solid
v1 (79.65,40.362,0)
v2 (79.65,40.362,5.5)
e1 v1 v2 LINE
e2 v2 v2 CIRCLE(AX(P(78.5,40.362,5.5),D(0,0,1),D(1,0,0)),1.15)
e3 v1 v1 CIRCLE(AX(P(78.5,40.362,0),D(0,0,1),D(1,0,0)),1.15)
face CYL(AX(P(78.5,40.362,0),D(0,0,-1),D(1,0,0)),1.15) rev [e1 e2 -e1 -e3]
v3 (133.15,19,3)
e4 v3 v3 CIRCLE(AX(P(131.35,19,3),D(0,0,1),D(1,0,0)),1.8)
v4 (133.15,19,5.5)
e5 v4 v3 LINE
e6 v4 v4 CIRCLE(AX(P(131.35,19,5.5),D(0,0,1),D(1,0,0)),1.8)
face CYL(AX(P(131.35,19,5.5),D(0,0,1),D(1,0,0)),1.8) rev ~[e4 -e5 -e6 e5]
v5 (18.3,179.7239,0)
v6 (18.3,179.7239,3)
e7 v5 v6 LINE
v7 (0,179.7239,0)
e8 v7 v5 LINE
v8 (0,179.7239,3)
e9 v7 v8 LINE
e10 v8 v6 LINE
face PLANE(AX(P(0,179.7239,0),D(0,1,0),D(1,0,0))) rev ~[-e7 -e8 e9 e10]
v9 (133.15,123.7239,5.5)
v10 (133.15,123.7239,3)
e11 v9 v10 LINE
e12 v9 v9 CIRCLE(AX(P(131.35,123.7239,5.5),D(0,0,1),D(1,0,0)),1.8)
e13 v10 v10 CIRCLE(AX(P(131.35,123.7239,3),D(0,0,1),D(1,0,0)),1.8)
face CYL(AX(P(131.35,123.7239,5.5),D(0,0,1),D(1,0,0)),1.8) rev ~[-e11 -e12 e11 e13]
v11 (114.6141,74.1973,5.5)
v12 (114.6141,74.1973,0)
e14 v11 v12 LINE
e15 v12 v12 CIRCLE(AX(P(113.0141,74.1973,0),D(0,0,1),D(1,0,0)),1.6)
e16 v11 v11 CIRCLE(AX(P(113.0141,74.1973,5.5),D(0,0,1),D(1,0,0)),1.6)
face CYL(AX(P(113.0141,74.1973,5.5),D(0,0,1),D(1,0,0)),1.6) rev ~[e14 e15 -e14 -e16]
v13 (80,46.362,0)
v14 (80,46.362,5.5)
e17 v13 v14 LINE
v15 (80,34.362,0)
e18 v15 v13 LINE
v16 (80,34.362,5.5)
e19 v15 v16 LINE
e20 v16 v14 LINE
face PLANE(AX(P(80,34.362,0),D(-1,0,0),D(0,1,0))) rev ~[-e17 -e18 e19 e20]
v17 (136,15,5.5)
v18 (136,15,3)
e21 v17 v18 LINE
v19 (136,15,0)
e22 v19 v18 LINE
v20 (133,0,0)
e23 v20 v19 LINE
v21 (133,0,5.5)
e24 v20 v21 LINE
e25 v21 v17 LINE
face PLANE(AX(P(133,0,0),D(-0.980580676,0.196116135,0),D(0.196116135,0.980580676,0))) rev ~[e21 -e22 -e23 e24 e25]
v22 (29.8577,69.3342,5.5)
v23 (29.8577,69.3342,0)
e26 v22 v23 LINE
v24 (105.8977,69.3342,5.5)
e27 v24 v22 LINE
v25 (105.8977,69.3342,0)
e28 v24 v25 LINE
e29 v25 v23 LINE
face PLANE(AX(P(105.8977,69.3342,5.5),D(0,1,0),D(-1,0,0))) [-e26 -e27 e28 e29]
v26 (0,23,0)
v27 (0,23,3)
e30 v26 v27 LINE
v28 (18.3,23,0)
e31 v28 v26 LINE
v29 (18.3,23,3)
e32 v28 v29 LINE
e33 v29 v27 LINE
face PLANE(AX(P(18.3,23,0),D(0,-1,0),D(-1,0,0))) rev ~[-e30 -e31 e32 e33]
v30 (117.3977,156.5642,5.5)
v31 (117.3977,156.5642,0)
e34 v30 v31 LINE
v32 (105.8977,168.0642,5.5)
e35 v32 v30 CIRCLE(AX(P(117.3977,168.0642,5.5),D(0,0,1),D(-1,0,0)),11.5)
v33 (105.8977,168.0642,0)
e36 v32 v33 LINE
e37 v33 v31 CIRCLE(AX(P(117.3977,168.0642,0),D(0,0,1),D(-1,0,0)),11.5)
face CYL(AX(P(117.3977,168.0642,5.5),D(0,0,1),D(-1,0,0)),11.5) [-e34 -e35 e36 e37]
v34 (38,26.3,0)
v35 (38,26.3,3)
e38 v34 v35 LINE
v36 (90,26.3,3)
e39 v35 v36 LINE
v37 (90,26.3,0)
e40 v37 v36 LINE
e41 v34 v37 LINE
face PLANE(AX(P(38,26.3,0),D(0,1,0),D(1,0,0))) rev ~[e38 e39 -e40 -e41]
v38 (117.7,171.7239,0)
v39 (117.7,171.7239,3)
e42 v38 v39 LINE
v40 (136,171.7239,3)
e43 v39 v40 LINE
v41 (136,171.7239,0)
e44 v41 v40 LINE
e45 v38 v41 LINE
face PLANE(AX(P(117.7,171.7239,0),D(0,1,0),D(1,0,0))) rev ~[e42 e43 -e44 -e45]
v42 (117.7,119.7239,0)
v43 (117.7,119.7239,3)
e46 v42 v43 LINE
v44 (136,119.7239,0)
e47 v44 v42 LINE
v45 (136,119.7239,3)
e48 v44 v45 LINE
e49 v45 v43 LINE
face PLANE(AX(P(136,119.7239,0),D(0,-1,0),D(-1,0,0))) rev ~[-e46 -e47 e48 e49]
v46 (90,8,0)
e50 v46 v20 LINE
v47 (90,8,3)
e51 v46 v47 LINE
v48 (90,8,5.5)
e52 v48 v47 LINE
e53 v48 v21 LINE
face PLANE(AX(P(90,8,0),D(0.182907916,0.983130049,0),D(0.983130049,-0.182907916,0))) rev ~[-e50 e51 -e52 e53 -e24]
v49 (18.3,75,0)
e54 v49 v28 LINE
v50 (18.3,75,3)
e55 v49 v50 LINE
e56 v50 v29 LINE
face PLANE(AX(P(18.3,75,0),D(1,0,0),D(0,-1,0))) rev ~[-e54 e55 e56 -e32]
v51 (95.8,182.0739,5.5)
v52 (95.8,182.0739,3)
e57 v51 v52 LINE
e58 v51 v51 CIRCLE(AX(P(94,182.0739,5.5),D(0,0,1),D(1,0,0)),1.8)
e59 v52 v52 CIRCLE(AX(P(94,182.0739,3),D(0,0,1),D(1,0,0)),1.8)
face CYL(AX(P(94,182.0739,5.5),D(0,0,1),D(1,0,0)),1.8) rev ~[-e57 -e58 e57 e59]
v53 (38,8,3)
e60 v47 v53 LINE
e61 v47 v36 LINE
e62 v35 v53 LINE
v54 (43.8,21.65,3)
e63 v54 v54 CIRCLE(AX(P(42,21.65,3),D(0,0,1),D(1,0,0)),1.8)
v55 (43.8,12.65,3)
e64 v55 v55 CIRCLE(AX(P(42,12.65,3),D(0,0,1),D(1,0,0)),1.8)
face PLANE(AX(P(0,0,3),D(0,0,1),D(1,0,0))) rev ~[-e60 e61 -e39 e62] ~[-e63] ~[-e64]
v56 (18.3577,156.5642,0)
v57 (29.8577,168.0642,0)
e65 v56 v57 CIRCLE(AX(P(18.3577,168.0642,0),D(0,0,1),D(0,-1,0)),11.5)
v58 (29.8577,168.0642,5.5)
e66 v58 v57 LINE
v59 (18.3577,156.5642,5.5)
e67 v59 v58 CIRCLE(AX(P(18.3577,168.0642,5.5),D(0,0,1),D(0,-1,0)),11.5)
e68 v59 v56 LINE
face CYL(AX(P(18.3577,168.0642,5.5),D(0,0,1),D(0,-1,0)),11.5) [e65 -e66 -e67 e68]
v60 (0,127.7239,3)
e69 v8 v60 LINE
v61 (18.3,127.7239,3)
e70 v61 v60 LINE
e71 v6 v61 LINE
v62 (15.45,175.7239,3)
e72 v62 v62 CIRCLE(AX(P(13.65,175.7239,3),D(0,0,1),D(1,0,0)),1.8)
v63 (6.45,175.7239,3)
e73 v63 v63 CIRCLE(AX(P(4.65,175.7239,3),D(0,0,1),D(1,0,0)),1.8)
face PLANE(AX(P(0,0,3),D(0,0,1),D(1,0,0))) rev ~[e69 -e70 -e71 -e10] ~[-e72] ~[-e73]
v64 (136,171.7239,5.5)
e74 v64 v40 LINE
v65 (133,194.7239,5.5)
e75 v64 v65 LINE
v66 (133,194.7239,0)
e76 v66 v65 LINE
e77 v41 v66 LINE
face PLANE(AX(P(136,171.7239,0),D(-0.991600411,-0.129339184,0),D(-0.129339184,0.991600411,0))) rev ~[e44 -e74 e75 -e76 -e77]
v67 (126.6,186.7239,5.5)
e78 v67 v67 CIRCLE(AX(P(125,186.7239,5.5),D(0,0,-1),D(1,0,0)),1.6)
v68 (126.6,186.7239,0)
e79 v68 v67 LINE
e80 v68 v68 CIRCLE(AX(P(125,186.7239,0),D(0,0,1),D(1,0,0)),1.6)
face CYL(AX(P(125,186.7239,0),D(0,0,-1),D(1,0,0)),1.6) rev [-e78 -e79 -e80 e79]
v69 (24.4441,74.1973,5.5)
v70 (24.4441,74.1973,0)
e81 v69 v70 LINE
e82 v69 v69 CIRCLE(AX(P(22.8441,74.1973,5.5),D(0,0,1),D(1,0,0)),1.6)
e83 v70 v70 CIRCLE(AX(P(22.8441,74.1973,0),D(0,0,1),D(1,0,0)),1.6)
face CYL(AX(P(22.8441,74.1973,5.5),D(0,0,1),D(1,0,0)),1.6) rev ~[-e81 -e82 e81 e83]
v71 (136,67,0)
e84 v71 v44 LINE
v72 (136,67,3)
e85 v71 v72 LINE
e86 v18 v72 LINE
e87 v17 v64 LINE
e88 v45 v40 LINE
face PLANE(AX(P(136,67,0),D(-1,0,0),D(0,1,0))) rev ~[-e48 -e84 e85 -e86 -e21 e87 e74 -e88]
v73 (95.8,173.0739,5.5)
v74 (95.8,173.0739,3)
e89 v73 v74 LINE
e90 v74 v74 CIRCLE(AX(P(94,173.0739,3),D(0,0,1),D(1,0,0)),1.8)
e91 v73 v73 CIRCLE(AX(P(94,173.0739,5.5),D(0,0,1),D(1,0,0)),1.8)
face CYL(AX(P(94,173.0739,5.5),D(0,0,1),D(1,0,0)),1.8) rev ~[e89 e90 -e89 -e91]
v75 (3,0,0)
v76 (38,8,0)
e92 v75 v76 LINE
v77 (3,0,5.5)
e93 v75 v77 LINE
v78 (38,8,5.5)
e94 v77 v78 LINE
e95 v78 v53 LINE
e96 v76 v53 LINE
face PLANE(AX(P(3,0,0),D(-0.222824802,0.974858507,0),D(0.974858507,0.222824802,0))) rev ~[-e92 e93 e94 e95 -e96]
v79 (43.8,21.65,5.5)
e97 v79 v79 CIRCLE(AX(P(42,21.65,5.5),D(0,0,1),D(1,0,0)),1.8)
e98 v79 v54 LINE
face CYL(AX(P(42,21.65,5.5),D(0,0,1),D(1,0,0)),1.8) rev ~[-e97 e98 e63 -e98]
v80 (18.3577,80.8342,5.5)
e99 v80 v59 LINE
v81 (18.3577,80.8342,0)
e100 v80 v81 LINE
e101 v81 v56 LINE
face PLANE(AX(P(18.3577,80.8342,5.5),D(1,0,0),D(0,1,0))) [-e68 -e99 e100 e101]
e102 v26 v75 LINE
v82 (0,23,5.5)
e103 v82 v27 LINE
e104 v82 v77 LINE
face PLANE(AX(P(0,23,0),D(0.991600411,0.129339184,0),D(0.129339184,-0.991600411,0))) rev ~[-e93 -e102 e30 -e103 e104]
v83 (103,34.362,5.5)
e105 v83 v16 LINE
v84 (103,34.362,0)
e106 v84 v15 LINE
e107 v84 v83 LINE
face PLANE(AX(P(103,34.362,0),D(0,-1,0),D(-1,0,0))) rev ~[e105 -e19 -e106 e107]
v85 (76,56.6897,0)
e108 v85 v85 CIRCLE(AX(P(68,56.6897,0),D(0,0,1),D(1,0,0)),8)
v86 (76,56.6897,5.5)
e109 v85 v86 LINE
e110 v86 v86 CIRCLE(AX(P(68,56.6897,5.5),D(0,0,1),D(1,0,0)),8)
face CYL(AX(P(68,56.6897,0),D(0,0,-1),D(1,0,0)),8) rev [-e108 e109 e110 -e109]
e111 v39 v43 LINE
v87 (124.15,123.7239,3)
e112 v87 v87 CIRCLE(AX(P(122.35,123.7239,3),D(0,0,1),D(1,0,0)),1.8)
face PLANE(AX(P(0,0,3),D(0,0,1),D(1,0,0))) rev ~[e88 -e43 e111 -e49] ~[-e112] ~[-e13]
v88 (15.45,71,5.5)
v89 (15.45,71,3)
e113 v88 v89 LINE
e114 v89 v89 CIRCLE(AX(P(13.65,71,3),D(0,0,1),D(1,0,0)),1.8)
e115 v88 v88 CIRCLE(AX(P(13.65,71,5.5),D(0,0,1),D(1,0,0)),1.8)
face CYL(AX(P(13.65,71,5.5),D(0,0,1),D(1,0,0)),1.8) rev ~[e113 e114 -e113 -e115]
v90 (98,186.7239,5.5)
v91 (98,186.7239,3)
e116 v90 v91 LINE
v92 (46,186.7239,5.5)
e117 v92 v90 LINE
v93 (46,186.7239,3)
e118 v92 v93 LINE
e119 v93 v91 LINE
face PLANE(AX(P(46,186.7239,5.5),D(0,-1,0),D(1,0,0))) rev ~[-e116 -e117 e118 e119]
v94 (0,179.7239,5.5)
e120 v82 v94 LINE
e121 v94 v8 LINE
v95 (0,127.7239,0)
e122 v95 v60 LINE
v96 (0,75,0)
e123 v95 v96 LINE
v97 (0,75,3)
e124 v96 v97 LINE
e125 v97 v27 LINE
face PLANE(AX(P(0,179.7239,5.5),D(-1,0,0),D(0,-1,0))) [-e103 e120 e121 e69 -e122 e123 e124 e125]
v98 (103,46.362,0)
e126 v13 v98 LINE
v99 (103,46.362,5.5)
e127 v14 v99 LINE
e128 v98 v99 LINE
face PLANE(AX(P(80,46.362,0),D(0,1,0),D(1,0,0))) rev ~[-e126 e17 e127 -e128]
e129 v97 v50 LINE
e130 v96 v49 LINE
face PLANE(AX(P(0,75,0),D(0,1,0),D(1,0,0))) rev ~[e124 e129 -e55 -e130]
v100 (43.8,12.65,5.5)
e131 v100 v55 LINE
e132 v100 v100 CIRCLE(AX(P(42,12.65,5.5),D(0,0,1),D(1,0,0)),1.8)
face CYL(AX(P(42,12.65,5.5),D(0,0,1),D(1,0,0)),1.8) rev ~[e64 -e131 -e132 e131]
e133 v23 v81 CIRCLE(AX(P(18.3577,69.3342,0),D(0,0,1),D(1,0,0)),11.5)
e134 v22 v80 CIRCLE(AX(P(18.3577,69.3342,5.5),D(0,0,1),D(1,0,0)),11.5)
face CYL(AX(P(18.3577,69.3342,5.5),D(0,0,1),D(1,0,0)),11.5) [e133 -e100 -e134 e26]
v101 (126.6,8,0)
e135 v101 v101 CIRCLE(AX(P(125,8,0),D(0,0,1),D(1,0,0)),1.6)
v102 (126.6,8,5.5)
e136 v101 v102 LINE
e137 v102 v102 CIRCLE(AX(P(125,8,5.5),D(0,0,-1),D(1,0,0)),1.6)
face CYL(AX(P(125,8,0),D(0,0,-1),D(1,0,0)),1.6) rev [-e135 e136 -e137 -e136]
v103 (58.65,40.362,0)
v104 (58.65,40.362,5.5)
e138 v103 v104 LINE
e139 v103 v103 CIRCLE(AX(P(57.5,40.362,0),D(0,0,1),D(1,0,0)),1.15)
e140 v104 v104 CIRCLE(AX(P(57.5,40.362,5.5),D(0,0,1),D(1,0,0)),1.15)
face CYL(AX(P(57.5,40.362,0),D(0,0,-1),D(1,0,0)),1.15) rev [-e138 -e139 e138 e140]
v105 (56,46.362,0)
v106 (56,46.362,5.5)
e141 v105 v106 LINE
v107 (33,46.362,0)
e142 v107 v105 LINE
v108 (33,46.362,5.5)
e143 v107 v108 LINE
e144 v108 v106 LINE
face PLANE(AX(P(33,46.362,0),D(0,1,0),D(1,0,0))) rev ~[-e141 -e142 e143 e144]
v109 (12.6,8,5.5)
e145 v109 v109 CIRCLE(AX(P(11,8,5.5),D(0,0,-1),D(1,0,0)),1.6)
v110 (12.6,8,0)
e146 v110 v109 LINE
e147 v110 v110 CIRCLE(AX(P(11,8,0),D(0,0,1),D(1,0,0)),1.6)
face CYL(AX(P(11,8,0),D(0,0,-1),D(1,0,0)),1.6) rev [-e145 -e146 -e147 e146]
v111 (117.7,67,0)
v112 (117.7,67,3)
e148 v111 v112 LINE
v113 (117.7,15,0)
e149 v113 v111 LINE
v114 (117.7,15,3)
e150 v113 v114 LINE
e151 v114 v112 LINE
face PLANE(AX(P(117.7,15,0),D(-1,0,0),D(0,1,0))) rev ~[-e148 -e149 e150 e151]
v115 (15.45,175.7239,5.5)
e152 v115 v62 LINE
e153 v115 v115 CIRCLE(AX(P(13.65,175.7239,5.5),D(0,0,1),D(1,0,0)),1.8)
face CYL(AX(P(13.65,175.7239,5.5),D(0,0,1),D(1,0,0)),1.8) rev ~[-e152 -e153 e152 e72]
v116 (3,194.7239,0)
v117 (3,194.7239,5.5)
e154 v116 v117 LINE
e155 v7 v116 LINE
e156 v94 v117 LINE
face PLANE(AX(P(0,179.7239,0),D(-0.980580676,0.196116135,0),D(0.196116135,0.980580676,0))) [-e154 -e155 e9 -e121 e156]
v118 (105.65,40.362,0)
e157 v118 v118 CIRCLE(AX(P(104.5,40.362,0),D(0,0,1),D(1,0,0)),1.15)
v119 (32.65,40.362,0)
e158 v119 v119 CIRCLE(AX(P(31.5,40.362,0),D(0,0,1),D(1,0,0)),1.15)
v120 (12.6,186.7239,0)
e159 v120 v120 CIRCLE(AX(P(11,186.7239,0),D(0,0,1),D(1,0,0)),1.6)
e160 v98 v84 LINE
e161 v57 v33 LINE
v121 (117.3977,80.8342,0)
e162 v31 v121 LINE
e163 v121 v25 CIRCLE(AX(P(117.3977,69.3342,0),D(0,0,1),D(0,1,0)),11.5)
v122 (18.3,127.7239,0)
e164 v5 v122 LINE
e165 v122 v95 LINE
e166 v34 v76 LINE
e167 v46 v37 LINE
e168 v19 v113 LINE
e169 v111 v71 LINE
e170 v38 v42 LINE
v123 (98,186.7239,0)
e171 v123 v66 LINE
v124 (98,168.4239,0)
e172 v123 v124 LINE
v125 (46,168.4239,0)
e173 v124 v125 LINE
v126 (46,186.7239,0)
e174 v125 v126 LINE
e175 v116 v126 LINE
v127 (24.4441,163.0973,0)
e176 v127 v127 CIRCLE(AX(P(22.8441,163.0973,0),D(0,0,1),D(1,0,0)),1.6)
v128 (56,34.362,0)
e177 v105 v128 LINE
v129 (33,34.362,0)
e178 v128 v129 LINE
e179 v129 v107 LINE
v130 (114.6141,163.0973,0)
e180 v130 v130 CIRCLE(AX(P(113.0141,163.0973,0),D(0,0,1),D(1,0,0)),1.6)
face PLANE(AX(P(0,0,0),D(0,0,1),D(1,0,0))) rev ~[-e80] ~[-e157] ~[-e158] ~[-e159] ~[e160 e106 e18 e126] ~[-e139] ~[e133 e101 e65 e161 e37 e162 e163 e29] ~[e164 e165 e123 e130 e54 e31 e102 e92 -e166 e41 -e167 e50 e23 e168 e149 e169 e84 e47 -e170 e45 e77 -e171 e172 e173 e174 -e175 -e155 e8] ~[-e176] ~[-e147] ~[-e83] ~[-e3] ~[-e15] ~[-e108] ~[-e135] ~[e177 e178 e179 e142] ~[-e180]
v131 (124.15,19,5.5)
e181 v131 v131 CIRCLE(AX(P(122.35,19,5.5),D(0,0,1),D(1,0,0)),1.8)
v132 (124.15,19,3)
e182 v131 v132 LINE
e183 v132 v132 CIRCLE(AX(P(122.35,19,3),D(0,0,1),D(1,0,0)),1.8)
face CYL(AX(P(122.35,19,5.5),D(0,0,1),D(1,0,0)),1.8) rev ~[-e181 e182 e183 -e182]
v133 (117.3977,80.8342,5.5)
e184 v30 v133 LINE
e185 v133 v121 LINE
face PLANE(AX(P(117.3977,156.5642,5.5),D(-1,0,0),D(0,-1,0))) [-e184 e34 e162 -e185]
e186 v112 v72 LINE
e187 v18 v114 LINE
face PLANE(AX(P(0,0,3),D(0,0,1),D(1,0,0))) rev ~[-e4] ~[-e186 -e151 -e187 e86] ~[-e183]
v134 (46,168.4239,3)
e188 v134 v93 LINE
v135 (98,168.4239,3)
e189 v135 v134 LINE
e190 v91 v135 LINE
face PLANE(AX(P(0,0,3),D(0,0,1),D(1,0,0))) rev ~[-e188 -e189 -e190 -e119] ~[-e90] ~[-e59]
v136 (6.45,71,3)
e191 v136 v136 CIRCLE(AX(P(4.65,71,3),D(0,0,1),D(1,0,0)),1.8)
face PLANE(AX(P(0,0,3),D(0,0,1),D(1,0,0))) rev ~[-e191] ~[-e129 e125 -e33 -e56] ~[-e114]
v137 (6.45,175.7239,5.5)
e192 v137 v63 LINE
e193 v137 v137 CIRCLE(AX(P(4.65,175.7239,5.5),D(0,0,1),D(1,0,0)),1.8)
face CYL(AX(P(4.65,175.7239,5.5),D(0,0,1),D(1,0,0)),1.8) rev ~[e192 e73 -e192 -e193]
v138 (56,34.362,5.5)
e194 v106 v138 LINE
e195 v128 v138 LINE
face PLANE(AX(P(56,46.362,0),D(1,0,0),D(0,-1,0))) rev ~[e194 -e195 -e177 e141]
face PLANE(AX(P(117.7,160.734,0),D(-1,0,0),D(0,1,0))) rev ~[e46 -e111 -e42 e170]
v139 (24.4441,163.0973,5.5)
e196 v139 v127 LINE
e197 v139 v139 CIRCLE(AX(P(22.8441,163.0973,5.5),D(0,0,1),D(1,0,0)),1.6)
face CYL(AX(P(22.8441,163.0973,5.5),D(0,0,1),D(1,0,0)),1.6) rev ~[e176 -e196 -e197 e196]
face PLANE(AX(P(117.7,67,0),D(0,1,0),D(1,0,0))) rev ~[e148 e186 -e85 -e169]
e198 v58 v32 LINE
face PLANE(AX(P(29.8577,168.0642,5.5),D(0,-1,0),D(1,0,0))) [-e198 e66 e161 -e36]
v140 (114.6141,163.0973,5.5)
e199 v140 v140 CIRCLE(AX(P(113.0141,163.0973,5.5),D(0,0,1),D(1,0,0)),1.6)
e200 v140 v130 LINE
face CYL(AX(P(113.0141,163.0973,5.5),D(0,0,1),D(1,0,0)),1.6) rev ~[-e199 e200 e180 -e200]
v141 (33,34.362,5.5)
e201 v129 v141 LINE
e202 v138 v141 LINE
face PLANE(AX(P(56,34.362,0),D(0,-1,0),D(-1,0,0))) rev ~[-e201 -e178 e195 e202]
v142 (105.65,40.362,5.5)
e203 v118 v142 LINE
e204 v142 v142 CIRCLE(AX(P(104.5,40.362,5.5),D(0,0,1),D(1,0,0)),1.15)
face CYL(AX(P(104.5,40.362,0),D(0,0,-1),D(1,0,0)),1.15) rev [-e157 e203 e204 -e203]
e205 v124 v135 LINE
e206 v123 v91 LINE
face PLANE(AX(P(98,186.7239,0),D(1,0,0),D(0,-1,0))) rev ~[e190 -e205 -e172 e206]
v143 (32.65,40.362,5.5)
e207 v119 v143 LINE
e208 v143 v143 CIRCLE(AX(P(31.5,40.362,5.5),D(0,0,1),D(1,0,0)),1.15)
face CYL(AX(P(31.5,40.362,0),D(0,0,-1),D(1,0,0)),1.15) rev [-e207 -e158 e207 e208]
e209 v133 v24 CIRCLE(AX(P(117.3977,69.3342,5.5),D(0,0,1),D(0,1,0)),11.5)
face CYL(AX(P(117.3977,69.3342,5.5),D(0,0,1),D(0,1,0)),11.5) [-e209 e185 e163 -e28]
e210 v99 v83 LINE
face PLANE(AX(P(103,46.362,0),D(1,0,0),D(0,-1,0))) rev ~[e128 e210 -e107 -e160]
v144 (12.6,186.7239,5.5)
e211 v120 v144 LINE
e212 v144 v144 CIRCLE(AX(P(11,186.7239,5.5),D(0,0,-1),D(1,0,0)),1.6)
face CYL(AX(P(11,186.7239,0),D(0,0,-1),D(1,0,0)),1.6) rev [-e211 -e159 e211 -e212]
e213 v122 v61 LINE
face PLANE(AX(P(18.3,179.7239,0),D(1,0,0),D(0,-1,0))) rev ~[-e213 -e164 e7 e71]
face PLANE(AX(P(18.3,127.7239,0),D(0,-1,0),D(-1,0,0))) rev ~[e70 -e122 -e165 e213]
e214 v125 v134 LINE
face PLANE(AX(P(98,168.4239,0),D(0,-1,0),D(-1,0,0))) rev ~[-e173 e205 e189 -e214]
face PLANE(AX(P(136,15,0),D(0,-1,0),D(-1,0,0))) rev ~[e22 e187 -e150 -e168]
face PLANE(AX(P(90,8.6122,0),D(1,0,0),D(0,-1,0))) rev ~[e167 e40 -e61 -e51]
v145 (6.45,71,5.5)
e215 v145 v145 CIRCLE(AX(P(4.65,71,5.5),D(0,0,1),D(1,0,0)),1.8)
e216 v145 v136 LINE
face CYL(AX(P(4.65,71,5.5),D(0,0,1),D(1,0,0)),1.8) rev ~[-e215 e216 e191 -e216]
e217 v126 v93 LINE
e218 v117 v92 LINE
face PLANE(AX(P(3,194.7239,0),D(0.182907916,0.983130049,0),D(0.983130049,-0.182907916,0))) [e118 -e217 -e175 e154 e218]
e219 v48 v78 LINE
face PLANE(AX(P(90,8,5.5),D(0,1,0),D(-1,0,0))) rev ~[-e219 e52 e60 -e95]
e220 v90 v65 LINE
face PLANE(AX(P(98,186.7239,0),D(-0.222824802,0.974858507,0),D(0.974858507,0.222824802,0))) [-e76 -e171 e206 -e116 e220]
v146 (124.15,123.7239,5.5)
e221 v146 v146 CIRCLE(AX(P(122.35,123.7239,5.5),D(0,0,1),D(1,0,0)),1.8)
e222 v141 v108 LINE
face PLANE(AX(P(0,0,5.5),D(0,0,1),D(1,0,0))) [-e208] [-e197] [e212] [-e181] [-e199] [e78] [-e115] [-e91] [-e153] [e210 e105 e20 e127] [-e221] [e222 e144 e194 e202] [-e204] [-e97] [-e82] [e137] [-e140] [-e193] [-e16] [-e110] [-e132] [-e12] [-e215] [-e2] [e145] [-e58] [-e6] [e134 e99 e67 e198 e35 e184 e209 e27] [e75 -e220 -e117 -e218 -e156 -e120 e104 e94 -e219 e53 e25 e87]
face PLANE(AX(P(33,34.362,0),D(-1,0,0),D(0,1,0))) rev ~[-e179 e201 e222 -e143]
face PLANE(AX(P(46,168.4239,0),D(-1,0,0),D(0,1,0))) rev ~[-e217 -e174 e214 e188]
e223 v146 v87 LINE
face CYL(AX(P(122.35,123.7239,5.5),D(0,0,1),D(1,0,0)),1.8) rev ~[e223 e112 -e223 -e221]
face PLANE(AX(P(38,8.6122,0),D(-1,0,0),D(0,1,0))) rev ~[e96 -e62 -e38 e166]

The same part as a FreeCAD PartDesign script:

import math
import FreeCAD as App
import Part
import Sketcher
from FreeCAD import Vector

doc = App.newDocument("Part")
params = doc.addObject("Spreadsheet::Sheet", "Params")
for row, (alias, value) in enumerate([
    ("sketch1_width", "18.3 mm"),
    ("sketch1_diameter", "3.6 mm"),
    ("sketch1_width2", "52 mm"),
    ("pad1_length", "2.5 mm"),
    ("sketch2_diameter", "16 mm"),
    ("sketch2_diameter2", "2.3 mm"),
    ("sketch2_width", "23 mm"),
    ("sketch2_height", "12 mm"),
    ("sketch2_diameter3", "3.2 mm"),
    ("pad2_length", "5.5 mm"),
    ("sketch3_diameter", "3.2 mm"),
    ("sketch3_radius", "11.5 mm"),
    ("sketch3_width", "76.04 mm"),
    ("sketch3_height", "75.73 mm"),
    ("pocket1_length", "5.5 mm"),
], start=1):
    params.set(f"A{row}", alias)
    params.set(f"B{row}", "=" + value)
    params.setAlias(f"B{row}", alias)

body = doc.addObject("PartDesign::Body", "Body")
body.AllowCompound = True

# Sketch on XY plane
sketch1 = body.newObject("Sketcher::SketchObject", "Sketch")
sketch1.AttachmentSupport = (doc.getObject("XY_Plane"), [""])
sketch1.MapMode = "FlatFace"
sketch1.AttachmentOffset = App.Placement(Vector(0, 0, 5.5), App.Rotation())
sketch1.addGeometry([
    Part.LineSegment(Vector(18.3, 179.7239, 0), Vector(0, 179.7239, 0)),  # 0
    Part.LineSegment(Vector(0, 179.7239, 0), Vector(0, 127.7239, 0)),  # 1
    Part.LineSegment(Vector(0, 127.7239, 0), Vector(18.3, 127.7239, 0)),  # 2
    Part.LineSegment(Vector(18.3, 127.7239, 0), Vector(18.3, 179.7239, 0)),  # 3
    Part.Circle(Vector(4.65, 175.7239, 0), Vector(0, 0, 1), 1.8),  # 4
    Part.Circle(Vector(13.65, 175.7239, 0), Vector(0, 0, 1), 1.8),  # 5
    Part.LineSegment(Vector(18.3, 75, 0), Vector(0, 75, 0)),  # 6
    Part.LineSegment(Vector(0, 75, 0), Vector(0, 23, 0)),  # 7
    Part.LineSegment(Vector(0, 23, 0), Vector(18.3, 23, 0)),  # 8
    Part.LineSegment(Vector(18.3, 23, 0), Vector(18.3, 75, 0)),  # 9
    Part.Circle(Vector(4.65, 71, 0), Vector(0, 0, 1), 1.8),  # 10
    Part.Circle(Vector(13.65, 71, 0), Vector(0, 0, 1), 1.8),  # 11
    Part.LineSegment(Vector(98, 186.7239, 0), Vector(46, 186.7239, 0)),  # 12
    Part.LineSegment(Vector(46, 186.7239, 0), Vector(46, 168.4239, 0)),  # 13
    Part.LineSegment(Vector(46, 168.4239, 0), Vector(98, 168.4239, 0)),  # 14
    Part.LineSegment(Vector(98, 168.4239, 0), Vector(98, 186.7239, 0)),  # 15
    Part.Circle(Vector(94, 173.0739, 0), Vector(0, 0, 1), 1.8),  # 16
    Part.Circle(Vector(94, 182.0739, 0), Vector(0, 0, 1), 1.8),  # 17
    Part.LineSegment(Vector(38, 26.3, 0), Vector(38, 8, 0)),  # 18
    Part.LineSegment(Vector(38, 8, 0), Vector(90, 8, 0)),  # 19
    Part.LineSegment(Vector(90, 8, 0), Vector(90, 26.3, 0)),  # 20
    Part.LineSegment(Vector(90, 26.3, 0), Vector(38, 26.3, 0)),  # 21
    Part.Circle(Vector(42, 12.65, 0), Vector(0, 0, 1), 1.8),  # 22
    Part.Circle(Vector(42, 21.65, 0), Vector(0, 0, 1), 1.8),  # 23
    Part.LineSegment(Vector(136, 119.7239, 0), Vector(136, 171.7239, 0)),  # 24
    Part.LineSegment(Vector(136, 171.7239, 0), Vector(117.7, 171.7239, 0)),  # 25
    Part.LineSegment(Vector(117.7, 171.7239, 0), Vector(117.7, 119.7239, 0)),  # 26
    Part.LineSegment(Vector(117.7, 119.7239, 0), Vector(136, 119.7239, 0)),  # 27
    Part.Circle(Vector(122.35, 123.7239, 0), Vector(0, 0, 1), 1.8),  # 28
    Part.Circle(Vector(131.35, 123.7239, 0), Vector(0, 0, 1), 1.8),  # 29
    Part.LineSegment(Vector(136, 15, 0), Vector(136, 67, 0)),  # 30
    Part.LineSegment(Vector(136, 67, 0), Vector(117.7, 67, 0)),  # 31
    Part.LineSegment(Vector(117.7, 67, 0), Vector(117.7, 15, 0)),  # 32
    Part.LineSegment(Vector(117.7, 15, 0), Vector(136, 15, 0)),  # 33
    Part.Circle(Vector(122.35, 19, 0), Vector(0, 0, 1), 1.8),  # 34
    Part.Circle(Vector(131.35, 19, 0), Vector(0, 0, 1), 1.8),  # 35
], False)
sketch1.addConstraint([
    Sketcher.Constraint("Coincident", 0, 2, 1, 1),
    Sketcher.Constraint("Coincident", 1, 2, 2, 1),
    Sketcher.Constraint("Coincident", 2, 2, 3, 1),
    Sketcher.Constraint("Coincident", 3, 2, 0, 1),
    Sketcher.Constraint("Coincident", 6, 2, 7, 1),
    Sketcher.Constraint("Coincident", 7, 2, 8, 1),
    Sketcher.Constraint("Coincident", 8, 2, 9, 1),
    Sketcher.Constraint("Coincident", 9, 2, 6, 1),
    Sketcher.Constraint("Coincident", 12, 2, 13, 1),
    Sketcher.Constraint("Coincident", 13, 2, 14, 1),
    Sketcher.Constraint("Coincident", 14, 2, 15, 1),
    Sketcher.Constraint("Coincident", 15, 2, 12, 1),
    Sketcher.Constraint("Coincident", 18, 2, 19, 1),
    Sketcher.Constraint("Coincident", 19, 2, 20, 1),
    Sketcher.Constraint("Coincident", 20, 2, 21, 1),
    Sketcher.Constraint("Coincident", 21, 2, 18, 1),
    Sketcher.Constraint("Coincident", 24, 2, 25, 1),
    Sketcher.Constraint("Coincident", 25, 2, 26, 1),
    Sketcher.Constraint("Coincident", 26, 2, 27, 1),
    Sketcher.Constraint("Coincident", 27, 2, 24, 1),
    Sketcher.Constraint("Coincident", 30, 2, 31, 1),
    Sketcher.Constraint("Coincident", 31, 2, 32, 1),
    Sketcher.Constraint("Coincident", 32, 2, 33, 1),
    Sketcher.Constraint("Coincident", 33, 2, 30, 1),
    Sketcher.Constraint("Horizontal", 0),
    Sketcher.Constraint("Vertical", 1),
    Sketcher.Constraint("Horizontal", 2),
    Sketcher.Constraint("Vertical", 3),
    Sketcher.Constraint("Horizontal", 6),
    Sketcher.Constraint("Vertical", 7),
    Sketcher.Constraint("Horizontal", 8),
    Sketcher.Constraint("Vertical", 9),
    Sketcher.Constraint("Horizontal", 12),
    Sketcher.Constraint("Vertical", 13),
    Sketcher.Constraint("Horizontal", 14),
    Sketcher.Constraint("Vertical", 15),
    Sketcher.Constraint("Vertical", 18),
    Sketcher.Constraint("Horizontal", 19),
    Sketcher.Constraint("Vertical", 20),
    Sketcher.Constraint("Horizontal", 21),
    Sketcher.Constraint("Vertical", 24),
    Sketcher.Constraint("Horizontal", 25),
    Sketcher.Constraint("Vertical", 26),
    Sketcher.Constraint("Horizontal", 27),
    Sketcher.Constraint("Vertical", 30),
    Sketcher.Constraint("Horizontal", 31),
    Sketcher.Constraint("Vertical", 32),
    Sketcher.Constraint("Horizontal", 33),
    Sketcher.Constraint("Equal", 4, 5),
    Sketcher.Constraint("Equal", 5, 10),
    Sketcher.Constraint("Equal", 10, 11),
    Sketcher.Constraint("Equal", 11, 16),
    Sketcher.Constraint("Equal", 16, 17),
    Sketcher.Constraint("Equal", 17, 22),
    Sketcher.Constraint("Equal", 22, 23),
    Sketcher.Constraint("Equal", 23, 28),
    Sketcher.Constraint("Equal", 28, 29),
    Sketcher.Constraint("Equal", 29, 34),
    Sketcher.Constraint("Equal", 34, 35),
    Sketcher.Constraint("PointOnObject", 0, 2, -2),
    Sketcher.Constraint("PointOnObject", 6, 2, -2),
    Sketcher.Constraint("Horizontal", 4, 3, 5, 3),
    Sketcher.Constraint("Horizontal", 10, 3, 11, 3),
    Sketcher.Constraint("Horizontal", 28, 3, 29, 3),
    Sketcher.Constraint("Horizontal", 34, 3, 35, 3),
    Sketcher.Constraint("Vertical", 4, 3, 10, 3),
    Sketcher.Constraint("Vertical", 5, 3, 11, 3),
    Sketcher.Constraint("Vertical", 16, 3, 17, 3),
    Sketcher.Constraint("Vertical", 22, 3, 23, 3),
    Sketcher.Constraint("Vertical", 28, 3, 34, 3),
    Sketcher.Constraint("Vertical", 29, 3, 35, 3),
    Sketcher.Constraint("Vertical", 3, 2, 8, 2),
    Sketcher.Constraint("Vertical", 27, 2, 30, 2),
    Sketcher.Constraint("Vertical", 26, 2, 31, 2),
    Sketcher.Constraint("Equal", 14, 19),
    Sketcher.Constraint("Equal", 8, 25),
    Sketcher.Constraint("Equal", 21, 1),
    Sketcher.Constraint("Equal", 3, 7),
    Sketcher.Constraint("Equal", 33, 13),
    Sketcher.Constraint("Equal", 15, 18),
    Sketcher.Constraint("Equal", 9, 24),
    Sketcher.Constraint("Equal", 26, 30),
    Sketcher.Constraint("DistanceX", 0, 2, 0, 1, 18.3),
    Sketcher.Constraint("DistanceY", 4, 3, 0, 2, 4.0),
    Sketcher.Constraint("DistanceY", 10, 3, 6, 2, 4.0),
    Sketcher.Constraint("DistanceX", 16, 3, 14, 2, 4.0),
    Sketcher.Constraint("DistanceX", 18, 2, 22, 3, 4.0),
    Sketcher.Constraint("DistanceY", 26, 2, 28, 3, 4.0),
    Sketcher.Constraint("DistanceY", 32, 2, 34, 3, 4.0),
    Sketcher.Constraint("Diameter", 4, 3.6),
    Sketcher.Constraint("DistanceX", 12, 2, 12, 1, 52.0),
    Sketcher.Constraint("DistanceX", -1, 1, 4, 3, 4.65),
    Sketcher.Constraint("DistanceX", 5, 3, 2, 2, 4.65),
    Sketcher.Constraint("DistanceY", 17, 3, 12, 2, 4.65),
    Sketcher.Constraint("DistanceY", 14, 2, 16, 3, 4.65),
    Sketcher.Constraint("DistanceY", 18, 2, 22, 3, 4.65),
    Sketcher.Constraint("DistanceY", 23, 3, 20, 2, 4.65),
    Sketcher.Constraint("DistanceX", 29, 3, 24, 2, 4.65),
    Sketcher.Constraint("DistanceX", 26, 2, 28, 3, 4.65),
    Sketcher.Constraint("DistanceY", -1, 1, 10, 3, 71.0),
    Sketcher.Constraint("DistanceX", -1, 1, 16, 3, 94.0),
    Sketcher.Constraint("DistanceX", -1, 1, 22, 3, 42.0),
    Sketcher.Constraint("DistanceY", -1, 1, 34, 3, 19.0),
    Sketcher.Constraint("DistanceY", -1, 1, 18, 2, 8.0),
    Sketcher.Constraint("DistanceX", -1, 1, 24, 2, 136.0),
    Sketcher.Constraint("DistanceY", 28, 3, 5, 3, 52.0),
    Sketcher.Constraint("DistanceY", 3, 2, 12, 2, 7.0),
    Sketcher.Constraint("DistanceY", -1, 1, 4, 3, 175.724),
])
sketch1.setExpression("Constraints[82]", "Params.sketch1_width")
sketch1.setExpression("Constraints[89]", "Params.sketch1_diameter")
sketch1.setExpression("Constraints[90]", "Params.sketch1_width2")
pad1 = body.newObject("PartDesign::Pad", "Pad")
pad1.Profile = sketch1
pad1.setExpression("Length", "Params.pad1_length")
pad1.Reversed = True

# Sketch on XY plane
sketch2 = body.newObject("Sketcher::SketchObject", "Sketch001")
sketch2.AttachmentSupport = (doc.getObject("XY_Plane"), [""])
sketch2.MapMode = "FlatFace"
sketch2.addGeometry([
    Part.LineSegment(Vector(3, 194.7239, 0), Vector(0, 179.7239, 0)),  # 0
    Part.LineSegment(Vector(0, 179.7239, 0), Vector(18.3, 179.7239, 0)),  # 1
    Part.LineSegment(Vector(18.3, 179.7239, 0), Vector(18.3, 127.7239, 0)),  # 2
    Part.LineSegment(Vector(18.3, 127.7239, 0), Vector(0, 127.7239, 0)),  # 3
    Part.LineSegment(Vector(0, 127.7239, 0), Vector(0, 75, 0)),  # 4
    Part.LineSegment(Vector(0, 75, 0), Vector(18.3, 75, 0)),  # 5
    Part.LineSegment(Vector(18.3, 75, 0), Vector(18.3, 23, 0)),  # 6
    Part.LineSegment(Vector(18.3, 23, 0), Vector(0, 23, 0)),  # 7
    Part.LineSegment(Vector(0, 23, 0), Vector(3, 0, 0)),  # 8
    Part.LineSegment(Vector(3, 0, 0), Vector(38, 8, 0)),  # 9
    Part.LineSegment(Vector(38, 8, 0), Vector(38, 26.3, 0)),  # 10
    Part.LineSegment(Vector(38, 26.3, 0), Vector(90, 26.3, 0)),  # 11
    Part.LineSegment(Vector(90, 26.3, 0), Vector(90, 8, 0)),  # 12
    Part.LineSegment(Vector(90, 8, 0), Vector(133, 0, 0)),  # 13
    Part.LineSegment(Vector(133, 0, 0), Vector(136, 15, 0)),  # 14
    Part.LineSegment(Vector(136, 15, 0), Vector(117.7, 15, 0)),  # 15
    Part.LineSegment(Vector(117.7, 15, 0), Vector(117.7, 67, 0)),  # 16
    Part.LineSegment(Vector(117.7, 67, 0), Vector(136, 67, 0)),  # 17
    Part.LineSegment(Vector(136, 67, 0), Vector(136, 119.7239, 0)),  # 18
    Part.LineSegment(Vector(136, 119.7239, 0), Vector(117.7, 119.7239, 0)),  # 19
    Part.LineSegment(Vector(117.7, 119.7239, 0), Vector(117.7, 171.7239, 0)),  # 20
    Part.LineSegment(Vector(117.7, 171.7239, 0), Vector(136, 171.7239, 0)),  # 21
    Part.LineSegment(Vector(136, 171.7239, 0), Vector(133, 194.7239, 0)),  # 22
    Part.LineSegment(Vector(133, 194.7239, 0), Vector(98, 186.7239, 0)),  # 23
    Part.LineSegment(Vector(98, 186.7239, 0), Vector(98, 168.4239, 0)),  # 24
    Part.LineSegment(Vector(98, 168.4239, 0), Vector(46, 168.4239, 0)),  # 25
    Part.LineSegment(Vector(46, 168.4239, 0), Vector(46, 186.7239, 0)),  # 26
    Part.LineSegment(Vector(46, 186.7239, 0), Vector(3, 194.7239, 0)),  # 27
    Part.Circle(Vector(11, 8, 0), Vector(0, 0, 1), 1.6),  # 28
    Part.Circle(Vector(31.5, 40.362, 0), Vector(0, 0, 1), 1.15),  # 29
    Part.LineSegment(Vector(33, 34.362, 0), Vector(33, 46.362, 0)),  # 30
    Part.LineSegment(Vector(33, 46.362, 0), Vector(56, 46.362, 0)),  # 31
    Part.LineSegment(Vector(56, 46.362, 0), Vector(56, 34.362, 0)),  # 32
    Part.LineSegment(Vector(56, 34.362, 0), Vector(33, 34.362, 0)),  # 33
    Part.Circle(Vector(57.5, 40.362, 0), Vector(0, 0, 1), 1.15),  # 34
    Part.Circle(Vector(78.5, 40.362, 0), Vector(0, 0, 1), 1.15),  # 35
    Part.LineSegment(Vector(80, 34.362, 0), Vector(80, 46.362, 0)),  # 36
    Part.LineSegment(Vector(80, 46.362, 0), Vector(103, 46.362, 0)),  # 37
    Part.LineSegment(Vector(103, 46.362, 0), Vector(103, 34.362, 0)),  # 38
    Part.LineSegment(Vector(103, 34.362, 0), Vector(80, 34.362, 0)),  # 39
    Part.Circle(Vector(125, 8, 0), Vector(0, 0, 1), 1.6),  # 40
    Part.Circle(Vector(104.5, 40.362, 0), Vector(0, 0, 1), 1.15),  # 41
    Part.Circle(Vector(68, 56.6897, 0), Vector(0, 0, 1), 8),  # 42
    Part.Circle(Vector(11, 186.7239, 0), Vector(0, 0, 1), 1.6),  # 43
    Part.Circle(Vector(125, 186.7239, 0), Vector(0, 0, 1), 1.6),  # 44
], False)
sketch2.addConstraint([
    Sketcher.Constraint("Coincident", 0, 2, 1, 1),
    Sketcher.Constraint("Coincident", 1, 2, 2, 1),
    Sketcher.Constraint("Coincident", 2, 2, 3, 1),
    Sketcher.Constraint("Coincident", 3, 2, 4, 1),
    Sketcher.Constraint("Coincident", 4, 2, 5, 1),
    Sketcher.Constraint("Coincident", 5, 2, 6, 1),
    Sketcher.Constraint("Coincident", 6, 2, 7, 1),
    Sketcher.Constraint("Coincident", 7, 2, 8, 1),
    Sketcher.Constraint("Coincident", 8, 2, 9, 1),
    Sketcher.Constraint("Coincident", 9, 2, 10, 1),
    Sketcher.Constraint("Coincident", 10, 2, 11, 1),
    Sketcher.Constraint("Coincident", 11, 2, 12, 1),
    Sketcher.Constraint("Coincident", 12, 2, 13, 1),
    Sketcher.Constraint("Coincident", 13, 2, 14, 1),
    Sketcher.Constraint("Coincident", 14, 2, 15, 1),
    Sketcher.Constraint("Coincident", 15, 2, 16, 1),
    Sketcher.Constraint("Coincident", 16, 2, 17, 1),
    Sketcher.Constraint("Coincident", 17, 2, 18, 1),
    Sketcher.Constraint("Coincident", 18, 2, 19, 1),
    Sketcher.Constraint("Coincident", 19, 2, 20, 1),
    Sketcher.Constraint("Coincident", 20, 2, 21, 1),
    Sketcher.Constraint("Coincident", 21, 2, 22, 1),
    Sketcher.Constraint("Coincident", 22, 2, 23, 1),
    Sketcher.Constraint("Coincident", 23, 2, 24, 1),
    Sketcher.Constraint("Coincident", 24, 2, 25, 1),
    Sketcher.Constraint("Coincident", 25, 2, 26, 1),
    Sketcher.Constraint("Coincident", 26, 2, 27, 1),
    Sketcher.Constraint("Coincident", 27, 2, 0, 1),
    Sketcher.Constraint("Coincident", 30, 2, 31, 1),
    Sketcher.Constraint("Coincident", 31, 2, 32, 1),
    Sketcher.Constraint("Coincident", 32, 2, 33, 1),
    Sketcher.Constraint("Coincident", 33, 2, 30, 1),
    Sketcher.Constraint("Coincident", 36, 2, 37, 1),
    Sketcher.Constraint("Coincident", 37, 2, 38, 1),
    Sketcher.Constraint("Coincident", 38, 2, 39, 1),
    Sketcher.Constraint("Coincident", 39, 2, 36, 1),
    Sketcher.Constraint("Horizontal", 1),
    Sketcher.Constraint("Vertical", 2),
    Sketcher.Constraint("Horizontal", 3),
    Sketcher.Constraint("Vertical", 4),
    Sketcher.Constraint("Horizontal", 5),
    Sketcher.Constraint("Vertical", 6),
    Sketcher.Constraint("Horizontal", 7),
    Sketcher.Constraint("Vertical", 10),
    Sketcher.Constraint("Horizontal", 11),
    Sketcher.Constraint("Vertical", 12),
    Sketcher.Constraint("Horizontal", 15),
    Sketcher.Constraint("Vertical", 16),
    Sketcher.Constraint("Horizontal", 17),
    Sketcher.Constraint("Vertical", 18),
    Sketcher.Constraint("Horizontal", 19),
    Sketcher.Constraint("Vertical", 20),
    Sketcher.Constraint("Horizontal", 21),
    Sketcher.Constraint("Vertical", 24),
    Sketcher.Constraint("Horizontal", 25),
    Sketcher.Constraint("Vertical", 26),
    Sketcher.Constraint("Vertical", 30),
    Sketcher.Constraint("Horizontal", 31),
    Sketcher.Constraint("Vertical", 32),
    Sketcher.Constraint("Horizontal", 33),
    Sketcher.Constraint("Vertical", 36),
    Sketcher.Constraint("Horizontal", 37),
    Sketcher.Constraint("Vertical", 38),
    Sketcher.Constraint("Horizontal", 39),
    Sketcher.Constraint("Equal", 29, 34),
    Sketcher.Constraint("Equal", 34, 35),
    Sketcher.Constraint("Equal", 28, 40),
    Sketcher.Constraint("Equal", 35, 41),
    Sketcher.Constraint("Equal", 40, 43),
    Sketcher.Constraint("Equal", 43, 44),
    Sketcher.Constraint("PointOnObject", 0, 2, -2),
    Sketcher.Constraint("PointOnObject", 3, 2, -2),
    Sketcher.Constraint("PointOnObject", 7, 2, -2),
    Sketcher.Constraint("PointOnObject", 8, 2, -1),
    Sketcher.Constraint("PointOnObject", 13, 2, -1),
    Sketcher.Constraint("Parallel", 0, 14),
    Sketcher.Constraint("Parallel", 8, 22),
    Sketcher.Constraint("Parallel", 9, 23),
    Sketcher.Constraint("Parallel", 13, 27),
    Sketcher.Constraint("Horizontal", 29, 3, 34, 3),
    Sketcher.Constraint("Horizontal", 34, 3, 35, 3),
    Sketcher.Constraint("Horizontal", 28, 3, 40, 3),
    Sketcher.Constraint("Horizontal", 35, 3, 41, 3),
    Sketcher.Constraint("Horizontal", 43, 3, 44, 3),
    Sketcher.Constraint("Horizontal", 40, 3, 9, 2),
    Sketcher.Constraint("Horizontal", 9, 2, 12, 2),
    Sketcher.Constraint("Horizontal", 44, 3, 23, 2),
    Sketcher.Constraint("Horizontal", 23, 2, 26, 2),
    Sketcher.Constraint("Horizontal", 22, 2, 27, 2),
    Sketcher.Constraint("Horizontal", 31, 2, 36, 2),
    Sketcher.Constraint("Horizontal", 33, 2, 38, 2),
    Sketcher.Constraint("Vertical", 28, 3, 43, 3),
    Sketcher.Constraint("Vertical", 40, 3, 44, 3),
    Sketcher.Constraint("Vertical", 2, 2, 5, 2),
    Sketcher.Constraint("Vertical", 14, 2, 17, 2),
    Sketcher.Constraint("Vertical", 16, 2, 19, 2),
    Sketcher.Constraint("Vertical", 18, 2, 21, 2),
    Sketcher.Constraint("Vertical", 13, 2, 22, 2),
    Sketcher.Constraint("Vertical", 8, 2, 27, 2),
    Sketcher.Constraint("Equal", 7, 15),
    Sketcher.Constraint("Equal", 11, 25),
    Sketcher.Constraint("Equal", 33, 37),
    Sketcher.Constraint("Equal", 25, 2),
    Sketcher.Constraint("Equal", 2, 6),
    Sketcher.Constraint("Equal", 21, 10),
    Sketcher.Constraint("Equal", 6, 16),
    Sketcher.Constraint("Equal", 4, 18),
    Sketcher.Constraint("Equal", 16, 20),
    Sketcher.Constraint("Equal", 12, 24),
    Sketcher.Constraint("Diameter", 42, 16.0),
    Sketcher.Constraint("Diameter", 29, 2.3),
    Sketcher.Constraint("DistanceX", 31, 1, 31, 2, 23.0),
    Sketcher.Constraint("DistanceY", 30, 1, 30, 2, 12.0),
    Sketcher.Constraint("DistanceY", -1, 1, 6, 2, 23.0),
    Sketcher.Constraint("DistanceY", 29, 3, 30, 2, 6.0),
    Sketcher.Constraint("DistanceX", 31, 2, 42, 3, 12.0),
    Sketcher.Constraint("DistanceX", 42, 3, 36, 2, 12.0),
    Sketcher.Constraint("Diameter", 28, 3.2),
    Sketcher.Constraint("DistanceX", 29, 3, 30, 2, 1.5),
    Sketcher.Constraint("DistanceX", 31, 2, 34, 3, 1.5),
    Sketcher.Constraint("DistanceX", 35, 3, 36, 2, 1.5),
    Sketcher.Constraint("DistanceX", 37, 2, 41, 3, 1.5),
    Sketcher.Constraint("DistanceX", 11, 1, 11, 2, 52.0),
    Sketcher.Constraint("DistanceX", 1, 1, 1, 2, 18.3),
    Sketcher.Constraint("DistanceX", -1, 1, 28, 3, 11.0),
    Sketcher.Constraint("DistanceY", -1, 1, 28, 3, 8.0),
    Sketcher.Constraint("DistanceX", -1, 1, 40, 3, 125.0),
    Sketcher.Constraint("DistanceX", -1, 1, 42, 3, 68.0),
    Sketcher.Constraint("DistanceX", -1, 1, 8, 2, 3.0),
    Sketcher.Constraint("DistanceX", -1, 1, 9, 2, 38.0),
    Sketcher.Constraint("DistanceX", -1, 1, 13, 2, 133.0),
    Sketcher.Constraint("DistanceY", -1, 1, 14, 2, 15.0),
    Sketcher.Constraint("DistanceY", 4, 2, 4, 1, 52.724),
    Sketcher.Constraint("DistanceY", -1, 1, 29, 3, 40.362),
    Sketcher.Constraint("DistanceY", -1, 1, 42, 3, 56.6897),
])
sketch2.setExpression("Constraints[109]", "Params.sketch2_diameter")
sketch2.setExpression("Constraints[110]", "Params.sketch2_diameter2")
sketch2.setExpression("Constraints[111]", "Params.sketch2_width")
sketch2.setExpression("Constraints[112]", "Params.sketch2_height")
sketch2.setExpression("Constraints[117]", "Params.sketch2_diameter3")
pad2 = body.newObject("PartDesign::Pad", "Pad001")
pad2.Profile = sketch2
pad2.setExpression("Length", "Params.pad2_length")

# Sketch on XY plane
sketch3 = body.newObject("Sketcher::SketchObject", "Sketch002")
sketch3.AttachmentSupport = (doc.getObject("XY_Plane"), [""])
sketch3.MapMode = "FlatFace"
sketch3.AttachmentOffset = App.Placement(Vector(0, 0, 5.5), App.Rotation())
sketch3.addGeometry([
    Part.LineSegment(Vector(105.8977, 168.0642, 0), Vector(29.8577, 168.0642, 0)),  # 0
    Part.ArcOfCircle(Part.Circle(Vector(18.3577, 168.0642, 0), Vector(0, 0, 1), 11.5), math.radians(-90), math.radians(0)),  # 1
    Part.LineSegment(Vector(18.3577, 156.5642, 0), Vector(18.3577, 80.8342, 0)),  # 2
    Part.ArcOfCircle(Part.Circle(Vector(18.3577, 69.3342, 0), Vector(0, 0, 1), 11.5), math.radians(0), math.radians(90)),  # 3
    Part.LineSegment(Vector(29.8577, 69.3342, 0), Vector(105.8977, 69.3342, 0)),  # 4
    Part.ArcOfCircle(Part.Circle(Vector(117.3977, 69.3342, 0), Vector(0, 0, 1), 11.5), math.radians(90), math.radians(180)),  # 5
    Part.LineSegment(Vector(117.3977, 80.8342, 0), Vector(117.3977, 156.5642, 0)),  # 6
    Part.ArcOfCircle(Part.Circle(Vector(117.3977, 168.0642, 0), Vector(0, 0, 1), 11.5), math.radians(180), math.radians(270)),  # 7
    Part.Circle(Vector(113.0141, 163.0973, 0), Vector(0, 0, 1), 1.6),  # 8
    Part.Circle(Vector(113.0141, 74.1973, 0), Vector(0, 0, 1), 1.6),  # 9
    Part.Circle(Vector(22.8441, 74.1973, 0), Vector(0, 0, 1), 1.6),  # 10
    Part.Circle(Vector(22.8441, 163.0973, 0), Vector(0, 0, 1), 1.6),  # 11
], False)
sketch3.addConstraint([
    Sketcher.Constraint("Coincident", 0, 2, 1, 2),
    Sketcher.Constraint("Coincident", 1, 1, 2, 1),
    Sketcher.Constraint("Coincident", 2, 2, 3, 2),
    Sketcher.Constraint("Coincident", 3, 1, 4, 1),
    Sketcher.Constraint("Coincident", 4, 2, 5, 2),
    Sketcher.Constraint("Coincident", 5, 1, 6, 1),
    Sketcher.Constraint("Coincident", 6, 2, 7, 2),
    Sketcher.Constraint("Coincident", 7, 1, 0, 1),
    Sketcher.Constraint("Horizontal", 0),
    Sketcher.Constraint("Vertical", 2),
    Sketcher.Constraint("Horizontal", 4),
    Sketcher.Constraint("Vertical", 6),
    Sketcher.Constraint("Equal", 1, 3),
    Sketcher.Constraint("Equal", 3, 5),
    Sketcher.Constraint("Equal", 5, 7),
    Sketcher.Constraint("Equal", 8, 9),
    Sketcher.Constraint("Equal", 9, 10),
    Sketcher.Constraint("Equal", 10, 11),
    Sketcher.Constraint("Horizontal", 3, 3, 5, 3),
    Sketcher.Constraint("Horizontal", 1, 3, 7, 3),
    Sketcher.Constraint("Horizontal", 9, 3, 10, 3),
    Sketcher.Constraint("Horizontal", 8, 3, 11, 3),
    Sketcher.Constraint("Horizontal", 7, 3, 0, 2),
    Sketcher.Constraint("Horizontal", 5, 3, 3, 1),
    Sketcher.Constraint("Vertical", 1, 3, 3, 3),
    Sketcher.Constraint("Vertical", 5, 3, 7, 3),
    Sketcher.Constraint("Vertical", 8, 3, 9, 3),
    Sketcher.Constraint("Vertical", 10, 3, 11, 3),
    Sketcher.Constraint("Vertical", 3, 3, 1, 1),
    Sketcher.Constraint("Vertical", 7, 3, 5, 1),
    Sketcher.Constraint("Diameter", 8, 3.2),
    Sketcher.Constraint("Radius", 1, 11.5),
    Sketcher.Constraint("DistanceX", 0, 2, 0, 1, 76.04),
    Sketcher.Constraint("DistanceY", 2, 2, 2, 1, 75.73),
    Sketcher.Constraint("DistanceY", 9, 3, 8, 3, 88.9),
    Sketcher.Constraint("DistanceX", 10, 3, 9, 3, 90.17),
    Sketcher.Constraint("DistanceX", -1, 1, 8, 3, 113.014),
    Sketcher.Constraint("DistanceY", 8, 3, 7, 3, 4.967),
    Sketcher.Constraint("DistanceX", -1, 1, 1, 3, 18.3577),
    Sketcher.Constraint("DistanceY", -1, 1, 1, 3, 168.0642),
])
sketch3.setExpression("Constraints[30]", "Params.sketch3_diameter")
sketch3.setExpression("Constraints[31]", "Params.sketch3_radius")
sketch3.setExpression("Constraints[32]", "Params.sketch3_width")
sketch3.setExpression("Constraints[33]", "Params.sketch3_height")
pocket1 = body.newObject("PartDesign::Pocket", "Pocket")
pocket1.Profile = sketch3
pocket1.setExpression("Length", "Params.pocket1_length")

doc.recompute()
